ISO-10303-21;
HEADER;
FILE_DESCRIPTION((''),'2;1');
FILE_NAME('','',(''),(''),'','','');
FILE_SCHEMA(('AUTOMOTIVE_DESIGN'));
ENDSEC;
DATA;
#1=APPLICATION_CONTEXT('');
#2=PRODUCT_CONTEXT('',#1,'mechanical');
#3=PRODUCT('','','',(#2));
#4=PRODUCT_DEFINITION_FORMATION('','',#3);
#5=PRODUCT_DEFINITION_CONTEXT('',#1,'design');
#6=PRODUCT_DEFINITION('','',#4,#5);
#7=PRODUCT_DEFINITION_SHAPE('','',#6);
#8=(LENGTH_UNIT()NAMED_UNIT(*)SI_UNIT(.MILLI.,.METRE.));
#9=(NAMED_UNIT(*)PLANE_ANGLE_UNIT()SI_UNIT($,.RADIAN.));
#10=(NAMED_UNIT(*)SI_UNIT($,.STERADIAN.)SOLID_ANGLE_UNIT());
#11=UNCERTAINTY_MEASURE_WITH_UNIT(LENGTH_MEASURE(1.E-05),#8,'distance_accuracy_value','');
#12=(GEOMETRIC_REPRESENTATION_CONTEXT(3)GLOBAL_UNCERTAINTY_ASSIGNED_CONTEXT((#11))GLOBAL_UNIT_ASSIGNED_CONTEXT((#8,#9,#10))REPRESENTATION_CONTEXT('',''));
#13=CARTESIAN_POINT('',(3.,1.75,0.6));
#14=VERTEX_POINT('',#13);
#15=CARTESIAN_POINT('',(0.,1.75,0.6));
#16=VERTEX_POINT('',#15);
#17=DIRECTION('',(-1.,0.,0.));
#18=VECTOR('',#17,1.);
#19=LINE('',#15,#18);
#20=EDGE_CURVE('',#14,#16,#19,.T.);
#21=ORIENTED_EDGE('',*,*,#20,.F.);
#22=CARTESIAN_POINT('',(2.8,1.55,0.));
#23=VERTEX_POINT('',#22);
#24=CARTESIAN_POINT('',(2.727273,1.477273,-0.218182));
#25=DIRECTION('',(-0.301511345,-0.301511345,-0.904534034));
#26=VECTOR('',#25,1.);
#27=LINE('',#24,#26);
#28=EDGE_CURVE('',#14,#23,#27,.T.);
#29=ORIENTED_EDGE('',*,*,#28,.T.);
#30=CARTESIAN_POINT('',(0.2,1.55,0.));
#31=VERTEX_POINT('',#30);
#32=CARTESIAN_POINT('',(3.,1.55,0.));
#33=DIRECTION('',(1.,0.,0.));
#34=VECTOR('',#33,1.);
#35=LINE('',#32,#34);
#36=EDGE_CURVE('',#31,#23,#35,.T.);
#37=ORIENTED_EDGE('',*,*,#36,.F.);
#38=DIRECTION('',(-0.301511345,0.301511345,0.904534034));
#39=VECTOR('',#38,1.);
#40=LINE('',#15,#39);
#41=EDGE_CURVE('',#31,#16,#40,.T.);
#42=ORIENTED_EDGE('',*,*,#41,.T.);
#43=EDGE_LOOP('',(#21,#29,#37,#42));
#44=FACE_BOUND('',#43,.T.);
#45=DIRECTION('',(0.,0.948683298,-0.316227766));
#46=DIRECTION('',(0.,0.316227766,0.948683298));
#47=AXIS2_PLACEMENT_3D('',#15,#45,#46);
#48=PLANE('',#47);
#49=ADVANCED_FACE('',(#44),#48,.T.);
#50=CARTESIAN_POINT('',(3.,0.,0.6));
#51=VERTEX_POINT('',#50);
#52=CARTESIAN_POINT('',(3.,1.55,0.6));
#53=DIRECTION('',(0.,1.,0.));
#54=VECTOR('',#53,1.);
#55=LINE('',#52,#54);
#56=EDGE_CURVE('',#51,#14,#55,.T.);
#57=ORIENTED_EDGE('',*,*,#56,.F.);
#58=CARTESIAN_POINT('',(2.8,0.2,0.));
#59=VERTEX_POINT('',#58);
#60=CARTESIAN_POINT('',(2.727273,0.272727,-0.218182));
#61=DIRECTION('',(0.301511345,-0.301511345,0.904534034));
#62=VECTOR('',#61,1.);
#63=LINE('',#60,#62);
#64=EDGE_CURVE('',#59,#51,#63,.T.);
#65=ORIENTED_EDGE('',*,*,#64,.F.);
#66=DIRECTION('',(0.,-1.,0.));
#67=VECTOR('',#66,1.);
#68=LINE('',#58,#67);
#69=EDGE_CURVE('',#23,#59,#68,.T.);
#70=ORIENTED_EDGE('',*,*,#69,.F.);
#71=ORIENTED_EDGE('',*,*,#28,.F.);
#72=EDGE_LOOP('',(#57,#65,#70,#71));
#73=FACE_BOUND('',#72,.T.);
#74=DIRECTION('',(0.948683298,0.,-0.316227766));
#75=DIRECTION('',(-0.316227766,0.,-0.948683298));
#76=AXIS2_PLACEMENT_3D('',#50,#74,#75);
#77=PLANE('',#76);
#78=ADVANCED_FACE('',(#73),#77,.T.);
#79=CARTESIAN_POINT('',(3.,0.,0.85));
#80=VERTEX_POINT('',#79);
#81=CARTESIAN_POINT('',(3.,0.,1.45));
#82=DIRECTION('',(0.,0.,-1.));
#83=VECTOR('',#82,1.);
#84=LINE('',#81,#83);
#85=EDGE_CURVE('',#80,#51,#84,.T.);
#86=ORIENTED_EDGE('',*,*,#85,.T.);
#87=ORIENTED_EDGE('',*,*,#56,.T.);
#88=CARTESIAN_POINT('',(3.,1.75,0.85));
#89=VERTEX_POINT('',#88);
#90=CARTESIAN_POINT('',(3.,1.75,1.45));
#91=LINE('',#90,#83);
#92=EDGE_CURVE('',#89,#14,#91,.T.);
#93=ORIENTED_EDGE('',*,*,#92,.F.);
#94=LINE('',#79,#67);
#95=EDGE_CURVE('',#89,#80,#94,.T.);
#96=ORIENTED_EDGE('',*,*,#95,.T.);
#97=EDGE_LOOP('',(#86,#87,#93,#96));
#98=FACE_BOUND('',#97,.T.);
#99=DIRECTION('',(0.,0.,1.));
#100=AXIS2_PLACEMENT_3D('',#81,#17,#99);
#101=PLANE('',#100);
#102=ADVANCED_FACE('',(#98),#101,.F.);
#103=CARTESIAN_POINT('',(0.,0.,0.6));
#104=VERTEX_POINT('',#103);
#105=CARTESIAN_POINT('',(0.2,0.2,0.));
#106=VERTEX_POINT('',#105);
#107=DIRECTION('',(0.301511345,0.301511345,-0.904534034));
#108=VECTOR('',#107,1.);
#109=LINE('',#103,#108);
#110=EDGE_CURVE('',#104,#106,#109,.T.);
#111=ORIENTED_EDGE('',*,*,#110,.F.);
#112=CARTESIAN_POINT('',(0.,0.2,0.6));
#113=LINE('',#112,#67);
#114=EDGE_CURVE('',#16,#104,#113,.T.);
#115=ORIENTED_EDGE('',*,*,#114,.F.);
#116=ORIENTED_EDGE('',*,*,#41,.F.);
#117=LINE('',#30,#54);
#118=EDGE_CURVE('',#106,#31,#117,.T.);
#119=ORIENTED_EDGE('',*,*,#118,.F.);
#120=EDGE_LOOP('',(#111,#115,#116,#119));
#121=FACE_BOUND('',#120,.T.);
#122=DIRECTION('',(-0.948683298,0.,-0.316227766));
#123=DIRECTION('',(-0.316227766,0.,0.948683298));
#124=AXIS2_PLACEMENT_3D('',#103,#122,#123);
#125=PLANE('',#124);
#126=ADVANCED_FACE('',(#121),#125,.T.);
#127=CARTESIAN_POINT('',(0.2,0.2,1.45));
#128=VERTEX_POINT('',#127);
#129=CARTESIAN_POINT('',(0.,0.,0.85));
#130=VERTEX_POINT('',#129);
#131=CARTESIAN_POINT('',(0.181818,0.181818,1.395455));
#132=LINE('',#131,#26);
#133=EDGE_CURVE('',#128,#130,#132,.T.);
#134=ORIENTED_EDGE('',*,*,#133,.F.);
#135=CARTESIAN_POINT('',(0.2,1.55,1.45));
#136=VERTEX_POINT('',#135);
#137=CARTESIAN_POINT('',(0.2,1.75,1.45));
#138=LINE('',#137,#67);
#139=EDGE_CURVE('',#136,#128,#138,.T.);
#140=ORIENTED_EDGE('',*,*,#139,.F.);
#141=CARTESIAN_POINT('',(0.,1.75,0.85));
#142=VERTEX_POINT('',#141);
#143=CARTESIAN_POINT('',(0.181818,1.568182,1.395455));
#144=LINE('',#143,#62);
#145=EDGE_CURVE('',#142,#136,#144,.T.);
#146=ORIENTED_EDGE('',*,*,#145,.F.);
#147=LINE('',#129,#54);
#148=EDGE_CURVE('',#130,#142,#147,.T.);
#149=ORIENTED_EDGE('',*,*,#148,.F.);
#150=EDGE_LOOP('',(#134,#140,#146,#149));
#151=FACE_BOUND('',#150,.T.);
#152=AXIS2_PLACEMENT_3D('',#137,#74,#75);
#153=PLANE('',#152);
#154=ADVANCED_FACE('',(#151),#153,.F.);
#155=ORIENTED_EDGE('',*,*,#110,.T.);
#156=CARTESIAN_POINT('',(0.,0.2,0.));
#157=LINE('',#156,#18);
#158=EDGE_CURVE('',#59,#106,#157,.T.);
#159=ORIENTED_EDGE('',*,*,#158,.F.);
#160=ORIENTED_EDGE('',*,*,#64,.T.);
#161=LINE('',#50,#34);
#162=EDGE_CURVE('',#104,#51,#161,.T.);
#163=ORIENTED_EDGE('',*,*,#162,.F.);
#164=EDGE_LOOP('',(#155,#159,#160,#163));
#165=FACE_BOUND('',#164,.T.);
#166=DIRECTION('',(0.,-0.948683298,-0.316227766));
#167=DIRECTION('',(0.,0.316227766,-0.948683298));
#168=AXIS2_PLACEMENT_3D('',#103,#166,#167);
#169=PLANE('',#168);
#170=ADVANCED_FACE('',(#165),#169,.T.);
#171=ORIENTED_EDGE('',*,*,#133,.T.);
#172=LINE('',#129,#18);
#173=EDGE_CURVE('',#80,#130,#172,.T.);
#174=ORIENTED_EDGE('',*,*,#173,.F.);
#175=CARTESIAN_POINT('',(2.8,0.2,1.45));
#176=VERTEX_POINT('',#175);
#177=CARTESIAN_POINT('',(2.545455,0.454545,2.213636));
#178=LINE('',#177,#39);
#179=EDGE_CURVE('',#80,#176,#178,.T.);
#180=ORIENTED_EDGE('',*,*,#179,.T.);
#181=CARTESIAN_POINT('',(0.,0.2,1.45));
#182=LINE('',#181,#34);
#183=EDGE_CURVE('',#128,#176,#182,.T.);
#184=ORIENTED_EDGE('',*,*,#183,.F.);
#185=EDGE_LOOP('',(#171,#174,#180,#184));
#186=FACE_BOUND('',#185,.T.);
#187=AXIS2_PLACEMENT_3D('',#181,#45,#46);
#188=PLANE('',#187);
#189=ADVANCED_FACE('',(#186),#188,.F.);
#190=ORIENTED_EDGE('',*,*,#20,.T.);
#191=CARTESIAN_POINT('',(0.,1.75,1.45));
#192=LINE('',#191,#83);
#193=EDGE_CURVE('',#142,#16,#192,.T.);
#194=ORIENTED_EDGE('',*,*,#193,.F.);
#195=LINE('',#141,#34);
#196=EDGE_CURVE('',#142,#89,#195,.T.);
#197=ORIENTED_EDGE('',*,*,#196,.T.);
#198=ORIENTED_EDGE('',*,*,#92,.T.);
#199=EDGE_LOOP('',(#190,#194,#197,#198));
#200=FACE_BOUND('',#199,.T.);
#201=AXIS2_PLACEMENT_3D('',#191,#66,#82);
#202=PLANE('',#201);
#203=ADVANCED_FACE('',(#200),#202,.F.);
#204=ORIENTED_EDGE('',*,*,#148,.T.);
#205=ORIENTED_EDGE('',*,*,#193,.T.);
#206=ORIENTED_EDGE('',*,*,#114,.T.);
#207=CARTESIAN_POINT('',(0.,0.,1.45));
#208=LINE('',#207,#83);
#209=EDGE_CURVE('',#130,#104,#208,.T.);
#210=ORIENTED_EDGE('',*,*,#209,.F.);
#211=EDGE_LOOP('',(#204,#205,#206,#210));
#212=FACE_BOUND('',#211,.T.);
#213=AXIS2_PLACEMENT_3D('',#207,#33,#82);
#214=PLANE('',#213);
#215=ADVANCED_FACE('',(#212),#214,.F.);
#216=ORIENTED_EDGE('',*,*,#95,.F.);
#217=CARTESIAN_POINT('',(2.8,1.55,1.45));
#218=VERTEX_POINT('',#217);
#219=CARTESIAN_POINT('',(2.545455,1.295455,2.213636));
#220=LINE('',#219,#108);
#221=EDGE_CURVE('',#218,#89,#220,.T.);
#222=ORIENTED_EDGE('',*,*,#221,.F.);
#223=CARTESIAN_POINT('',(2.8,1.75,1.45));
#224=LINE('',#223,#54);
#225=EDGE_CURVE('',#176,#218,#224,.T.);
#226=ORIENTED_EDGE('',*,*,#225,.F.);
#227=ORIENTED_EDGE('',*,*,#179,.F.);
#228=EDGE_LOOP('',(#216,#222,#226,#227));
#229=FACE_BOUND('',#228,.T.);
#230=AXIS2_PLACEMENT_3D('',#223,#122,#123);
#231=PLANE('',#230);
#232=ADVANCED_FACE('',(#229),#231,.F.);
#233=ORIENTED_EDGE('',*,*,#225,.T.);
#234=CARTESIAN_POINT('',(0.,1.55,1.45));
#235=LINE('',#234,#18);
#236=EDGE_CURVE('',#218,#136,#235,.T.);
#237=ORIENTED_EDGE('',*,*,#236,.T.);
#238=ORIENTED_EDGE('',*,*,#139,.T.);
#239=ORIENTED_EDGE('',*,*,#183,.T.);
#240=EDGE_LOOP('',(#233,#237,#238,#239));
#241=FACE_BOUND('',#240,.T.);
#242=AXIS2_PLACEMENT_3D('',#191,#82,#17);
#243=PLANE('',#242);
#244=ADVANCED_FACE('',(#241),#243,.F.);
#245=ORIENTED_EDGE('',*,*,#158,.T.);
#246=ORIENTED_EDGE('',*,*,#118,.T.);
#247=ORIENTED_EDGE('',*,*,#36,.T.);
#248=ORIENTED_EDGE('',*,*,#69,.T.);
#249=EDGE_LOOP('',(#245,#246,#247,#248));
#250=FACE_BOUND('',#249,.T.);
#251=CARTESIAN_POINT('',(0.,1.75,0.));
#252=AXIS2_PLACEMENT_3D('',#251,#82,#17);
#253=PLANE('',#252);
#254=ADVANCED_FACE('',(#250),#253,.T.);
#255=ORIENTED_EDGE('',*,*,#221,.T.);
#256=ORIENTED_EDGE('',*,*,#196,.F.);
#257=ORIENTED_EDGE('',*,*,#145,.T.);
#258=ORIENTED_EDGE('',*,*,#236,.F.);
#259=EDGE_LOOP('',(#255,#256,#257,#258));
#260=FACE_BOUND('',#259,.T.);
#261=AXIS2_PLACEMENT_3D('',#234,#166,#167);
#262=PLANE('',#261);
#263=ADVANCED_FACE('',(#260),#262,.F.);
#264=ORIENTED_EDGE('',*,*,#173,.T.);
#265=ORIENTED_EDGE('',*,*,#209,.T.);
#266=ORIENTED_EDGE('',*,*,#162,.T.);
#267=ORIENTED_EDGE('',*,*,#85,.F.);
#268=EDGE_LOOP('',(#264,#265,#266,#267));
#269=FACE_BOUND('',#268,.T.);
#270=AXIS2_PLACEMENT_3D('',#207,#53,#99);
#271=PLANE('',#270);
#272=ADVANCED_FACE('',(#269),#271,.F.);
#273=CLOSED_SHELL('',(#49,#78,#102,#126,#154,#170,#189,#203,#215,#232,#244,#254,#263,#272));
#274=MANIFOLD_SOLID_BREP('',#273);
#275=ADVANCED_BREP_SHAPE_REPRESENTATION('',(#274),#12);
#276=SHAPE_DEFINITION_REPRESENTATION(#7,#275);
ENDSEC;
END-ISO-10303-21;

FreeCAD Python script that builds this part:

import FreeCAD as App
import Part
import Sketcher

V = App.Vector


def edges_at(feature, points):
    """Names of the edges that pass closest to the given points."""
    edges = feature.Shape.Edges
    near = lambda p: min(range(len(edges)), key=lambda i: edges[i].distToShape(Part.Vertex(*p))[0])
    return sorted({f"Edge{near(p) + 1}" for p in points})

doc = App.newDocument("Part")
body = doc.addObject("PartDesign::Body", "Body")

sketch1 = doc.addObject("Sketcher::SketchObject", "Sketch")
body.addObject(sketch1)
sketch1.AttachmentSupport = (doc.XY_Plane, [""])
sketch1.MapMode = "FlatFace"
sketch1.addGeometry([
    Part.LineSegment(V(0, 1.8, 0), V(0, 0, 0)),
    Part.LineSegment(V(0, 0, 0), V(3, 0, 0)),
    Part.LineSegment(V(3, 0, 0), V(3, 1.8, 0)),
    Part.LineSegment(V(3, 1.8, 0), V(0, 1.8, 0)),
], False)
sketch1.addConstraint([
    Sketcher.Constraint("Coincident", 0, 2, 1, 1),
    Sketcher.Constraint("Coincident", 1, 2, 2, 1),
    Sketcher.Constraint("Coincident", 2, 2, 3, 1),
    Sketcher.Constraint("Coincident", 3, 2, 0, 1),
    Sketcher.Constraint("Vertical", 0),
    Sketcher.Constraint("Horizontal", 1),
    Sketcher.Constraint("Vertical", 2),
    Sketcher.Constraint("Horizontal", 3),
    Sketcher.Constraint("Coincident", 0, 2, -1, 1),
    Sketcher.Constraint("DistanceX", 1, 1, 1, 2, 3.0),
    Sketcher.Constraint("DistanceY", 0, 2, 0, 1, 1.75),
])
pad1 = doc.addObject("PartDesign::Pad", "Pad")
body.addObject(pad1)
pad1.Profile = sketch1
pad1.Length = 1.45
doc.recompute()

chamfer = doc.addObject("PartDesign::Chamfer", "Chamfer")
body.addObject(chamfer)
chamfer.Base = (pad1, edges_at(pad1, [(1.5, 0, 1.45)]))
chamfer.ChamferType = "Two distances"
chamfer.Size = 0.6
chamfer.Size2 = 0.2
doc.recompute()

chamfer2 = doc.addObject("PartDesign::Chamfer", "Chamfer001")
body.addObject(chamfer2)
chamfer2.Base = (chamfer, edges_at(chamfer, [(1.5, 0, 0)]))
chamfer2.ChamferType = "Two distances"
chamfer2.Size = 0.2
chamfer2.Size2 = 0.6
chamfer2.FlipDirection = True
doc.recompute()

chamfer3 = doc.addObject("PartDesign::Chamfer", "Chamfer002")
body.addObject(chamfer3)
chamfer3.Base = (chamfer2, edges_at(chamfer2, [(1.5, 1.75, 1.45)]))
chamfer3.ChamferType = "Two distances"
chamfer3.Size = 0.6
chamfer3.Size2 = 0.2
chamfer3.FlipDirection = True
doc.recompute()

chamfer4 = doc.addObject("PartDesign::Chamfer", "Chamfer003")
body.addObject(chamfer4)
chamfer4.Base = (chamfer3, edges_at(chamfer3, [(1.5, 1.75, 0)]))
chamfer4.ChamferType = "Two distances"
chamfer4.Size = 0.2
chamfer4.Size2 = 0.6
chamfer4.FlipDirection = True
doc.recompute()

chamfer5 = doc.addObject("PartDesign::Chamfer", "Chamfer004")
body.addObject(chamfer5)
chamfer5.Base = (chamfer4, edges_at(chamfer4, [(0, 0.875, 1.45)]))
chamfer5.ChamferType = "Two distances"
chamfer5.Size = 0.6
chamfer5.Size2 = 0.2
doc.recompute()

chamfer6 = doc.addObject("PartDesign::Chamfer", "Chamfer005")
body.addObject(chamfer6)
chamfer6.Base = (chamfer5, edges_at(chamfer5, [(0, 0.875, 0)]))
chamfer6.ChamferType = "Two distances"
chamfer6.Size = 0.2
chamfer6.Size2 = 0.6
chamfer6.FlipDirection = True
doc.recompute()

chamfer7 = doc.addObject("PartDesign::Chamfer", "Chamfer006")
body.addObject(chamfer7)
chamfer7.Base = (chamfer6, edges_at(chamfer6, [(3, 0.875, 1.45)]))
chamfer7.ChamferType = "Two distances"
chamfer7.Size = 0.6
chamfer7.Size2 = 0.2
doc.recompute()

chamfer8 = doc.addObject("PartDesign::Chamfer", "Chamfer007")
body.addObject(chamfer8)
chamfer8.Base = (chamfer7, edges_at(chamfer7, [(3, 0.875, 0)]))
chamfer8.ChamferType = "Two distances"
chamfer8.Size = 0.2
chamfer8.Size2 = 0.6
chamfer8.FlipDirection = True

doc.recompute()
